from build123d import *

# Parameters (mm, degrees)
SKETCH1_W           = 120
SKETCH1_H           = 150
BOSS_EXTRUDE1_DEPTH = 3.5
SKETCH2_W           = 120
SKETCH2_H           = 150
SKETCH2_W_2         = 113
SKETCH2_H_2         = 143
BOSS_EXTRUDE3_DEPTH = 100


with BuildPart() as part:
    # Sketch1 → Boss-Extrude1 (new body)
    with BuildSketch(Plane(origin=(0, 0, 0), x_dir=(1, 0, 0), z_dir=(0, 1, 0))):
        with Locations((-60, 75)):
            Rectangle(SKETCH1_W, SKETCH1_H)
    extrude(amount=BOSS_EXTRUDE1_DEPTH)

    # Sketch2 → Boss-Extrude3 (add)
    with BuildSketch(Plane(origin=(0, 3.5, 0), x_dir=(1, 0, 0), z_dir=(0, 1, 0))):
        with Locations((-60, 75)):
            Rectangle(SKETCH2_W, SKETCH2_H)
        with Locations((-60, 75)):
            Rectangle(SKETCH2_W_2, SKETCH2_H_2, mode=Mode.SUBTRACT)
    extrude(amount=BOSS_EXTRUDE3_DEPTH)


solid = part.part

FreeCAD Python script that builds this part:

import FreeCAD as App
import Part
import Sketcher
from FreeCAD import Vector
Q = App.Units.Quantity


def add_polygon(sketch, points):
    """Adds a closed chain of lines whose ends are joined by coincident constraints."""
    first, n = sketch.GeometryCount, len(points)
    for a, b in zip(points, points[1:] + points[:1]):
        sketch.addGeometry(Part.LineSegment(App.Vector(*a, 0), App.Vector(*b, 0)), False)
    for i in range(n):
        sketch.addConstraint(Sketcher.Constraint("Coincident", first + i, 2, first + (i + 1) % n, 1))

doc = App.newDocument("Part")
body = doc.addObject("PartDesign::Body", "Body")

sketch1 = body.newObject("Sketcher::SketchObject", "Sketch")
sketch1.AttachmentSupport = (doc.getObject("XZ_Plane"), [""])
sketch1.MapMode = "FlatFace"
add_polygon(sketch1, [(-120, -150), (-120, 0), (0, 0), (0, -150)])
sketch1.addConstraint(Sketcher.Constraint("Vertical", 0))
sketch1.addConstraint(Sketcher.Constraint("Horizontal", 1))
sketch1.addConstraint(Sketcher.Constraint("Vertical", 2))
sketch1.addConstraint(Sketcher.Constraint("Horizontal", 3))
sketch1.addConstraint(Sketcher.Constraint("Coincident", 1, 2, -1, 1))
sketch1.addConstraint(Sketcher.Constraint("DistanceX", 1, 1, 1, 2, Q("120 mm")))
sketch1.addConstraint(Sketcher.Constraint("DistanceY", 0, 1, 0, 2, Q("150 mm")))
pad1 = body.newObject("PartDesign::Pad", "Pad")
pad1.Profile = sketch1
pad1.Length = 3.5
pad1.Reversed = True

sketch2 = body.newObject("Sketcher::SketchObject", "Sketch001")
sketch2.AttachmentSupport = (doc.getObject("XZ_Plane"), [""])
sketch2.MapMode = "FlatFace"
sketch2.AttachmentOffset = App.Placement(Vector(0, 0, -3.5), App.Rotation())
add_polygon(sketch2, [(-120, -150), (-120, 0), (0, 0), (0, -150)])
add_polygon(sketch2, [(-4, -4), (-116, -4), (-116, -146), (-4, -146)])
sketch2.addConstraint(Sketcher.Constraint("Vertical", 0))
sketch2.addConstraint(Sketcher.Constraint("Horizontal", 1))
sketch2.addConstraint(Sketcher.Constraint("Vertical", 2))
sketch2.addConstraint(Sketcher.Constraint("Horizontal", 3))
sketch2.addConstraint(Sketcher.Constraint("Horizontal", 4))
sketch2.addConstraint(Sketcher.Constraint("Vertical", 5))
sketch2.addConstraint(Sketcher.Constraint("Horizontal", 6))
sketch2.addConstraint(Sketcher.Constraint("Vertical", 7))
sketch2.addConstraint(Sketcher.Constraint("Coincident", 1, 2, -1, 1))
sketch2.addConstraint(Sketcher.Constraint("DistanceX", 1, 1, 1, 2, Q("120 mm")))
sketch2.addConstraint(Sketcher.Constraint("DistanceX", 4, 2, 4, 1, Q("113 mm")))
sketch2.addConstraint(Sketcher.Constraint("DistanceY", 0, 1, 0, 2, Q("150 mm")))
sketch2.addConstraint(Sketcher.Constraint("DistanceY", 5, 2, 5, 1, Q("143 mm")))
sketch2.addConstraint(Sketcher.Constraint("DistanceX", 4, 2, -1, 1, Q("116.5 mm")))
sketch2.addConstraint(Sketcher.Constraint("DistanceY", 4, 2, -1, 1, Q("3.5 mm")))
pad2 = body.newObject("PartDesign::Pad", "Pad001")
pad2.Profile = sketch2
pad2.Length = 100
pad2.Reversed = True

doc.recompute()
